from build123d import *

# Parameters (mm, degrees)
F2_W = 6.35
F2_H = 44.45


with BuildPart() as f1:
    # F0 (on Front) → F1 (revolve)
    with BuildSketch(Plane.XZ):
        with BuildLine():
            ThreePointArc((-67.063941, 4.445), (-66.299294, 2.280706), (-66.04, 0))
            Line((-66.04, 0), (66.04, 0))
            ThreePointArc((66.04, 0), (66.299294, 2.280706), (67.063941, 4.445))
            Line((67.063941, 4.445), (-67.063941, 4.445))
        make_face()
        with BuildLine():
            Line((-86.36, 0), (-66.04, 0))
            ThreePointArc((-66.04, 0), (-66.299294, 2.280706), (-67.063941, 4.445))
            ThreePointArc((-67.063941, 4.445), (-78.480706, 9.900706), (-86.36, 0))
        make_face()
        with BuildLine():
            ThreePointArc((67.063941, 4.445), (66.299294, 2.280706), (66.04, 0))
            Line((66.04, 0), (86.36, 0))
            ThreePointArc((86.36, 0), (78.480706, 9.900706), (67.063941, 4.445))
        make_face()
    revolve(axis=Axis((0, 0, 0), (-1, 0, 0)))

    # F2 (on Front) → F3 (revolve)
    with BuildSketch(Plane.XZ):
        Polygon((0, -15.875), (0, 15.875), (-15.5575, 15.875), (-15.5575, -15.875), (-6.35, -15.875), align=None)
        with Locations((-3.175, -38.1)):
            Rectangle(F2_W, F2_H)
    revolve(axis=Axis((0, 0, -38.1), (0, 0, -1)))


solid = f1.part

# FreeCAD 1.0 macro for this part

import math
import FreeCAD as App
import Part
import Sketcher
Q = App.Units.Quantity


def add_polygon(sketch, points):
    """Adds a closed chain of lines whose ends are joined by coincident constraints."""
    first, n = sketch.GeometryCount, len(points)
    for a, b in zip(points, points[1:] + points[:1]):
        sketch.addGeometry(Part.LineSegment(App.Vector(*a, 0), App.Vector(*b, 0)), False)
    for i in range(n):
        sketch.addConstraint(Sketcher.Constraint("Coincident", first + i, 2, first + (i + 1) % n, 1))

doc = App.newDocument("Part")
body = doc.addObject("PartDesign::Body", "Body")

# Sketch on XZ plane
sketch1 = body.newObject("Sketcher::SketchObject", "Sketch")
sketch1.AttachmentSupport = (doc.getObject("XZ_Plane"), [""])
sketch1.MapMode = "FlatFace"
sketch1.addGeometry(Part.LineSegment(App.Vector(67, 4, 0), App.Vector(-67, 4, 0)), False)
sketch1.addGeometry(Part.ArcOfCircle(Part.Circle(App.Vector(-76, 0, 0), App.Vector(0, 0, 1), 10), math.radians(26), math.radians(180)), False)
sketch1.addGeometry(Part.LineSegment(App.Vector(-86, 0, 0), App.Vector(86, 0, 0)), False)
sketch1.addGeometry(Part.ArcOfCircle(Part.Circle(App.Vector(76, 0, 0), App.Vector(0, 0, 1), 10), math.radians(0), math.radians(154)), False)
sketch1.addConstraint(Sketcher.Constraint("Coincident", 0, 2, 1, 1))
sketch1.addConstraint(Sketcher.Constraint("Coincident", 1, 2, 2, 1))
sketch1.addConstraint(Sketcher.Constraint("Coincident", 2, 2, 3, 1))
sketch1.addConstraint(Sketcher.Constraint("Coincident", 3, 2, 0, 1))
sketch1.addConstraint(Sketcher.Constraint("Horizontal", 0))
sketch1.addConstraint(Sketcher.Constraint("Horizontal", 2))
sketch1.addConstraint(Sketcher.Constraint("Equal", 1, 3))
sketch1.addConstraint(Sketcher.Constraint("Symmetric", 1, 3, 3, 3, -1, 1))
sketch1.addConstraint(Sketcher.Constraint("PointOnObject", 1, 3, -1))
sketch1.addConstraint(Sketcher.Constraint("PointOnObject", 1, 2, -1))
sketch1.addConstraint(Sketcher.Constraint("Radius", 1, Q("0.4 in")))
sketch1.addConstraint(Sketcher.Constraint("DistanceX", 2, 1, 2, 2, Q("6.8 in")))
sketch1.addConstraint(Sketcher.Constraint("DistanceY", -1, 1, 0, 2, Q("0.175 in")))
revolution = body.newObject("PartDesign::Revolution", "Revolution")
revolution.Profile = sketch1
revolution.ReferenceAxis = (sketch1, ["H_Axis"])
revolution.Angle = 360

# Sketch on XZ plane
sketch2 = body.newObject("Sketcher::SketchObject", "Sketch001")
sketch2.AttachmentSupport = (doc.getObject("XZ_Plane"), [""])
sketch2.MapMode = "FlatFace"
add_polygon(sketch2, [(0, 16), (-16, 16), (-16, -16), (-6, -16), (-6, -60), (0, -60)])  # lines 0-5
sketch2.addConstraint(Sketcher.Constraint("Horizontal", 0))
sketch2.addConstraint(Sketcher.Constraint("Vertical", 1))
sketch2.addConstraint(Sketcher.Constraint("Horizontal", 2))
sketch2.addConstraint(Sketcher.Constraint("Vertical", 3))
sketch2.addConstraint(Sketcher.Constraint("Horizontal", 4))
sketch2.addConstraint(Sketcher.Constraint("Vertical", 5))
sketch2.addConstraint(Sketcher.Constraint("PointOnObject", 4, 2, -2))
sketch2.addConstraint(Sketcher.Constraint("DistanceY", 5, 1, 5, 2, Q("3 in")))
sketch2.addConstraint(Sketcher.Constraint("DistanceX", 4, 1, 4, 2, Q("0.25 in")))
sketch2.addConstraint(Sketcher.Constraint("DistanceY", 1, 2, 1, 1, Q("1.25 in")))
sketch2.addConstraint(Sketcher.Constraint("DistanceX", 0, 2, 0, 1, Q("0.6125 in")))
sketch2.addConstraint(Sketcher.Constraint("DistanceY", -1, 1, 0, 2, Q("0.625 in")))
revolution2 = body.newObject("PartDesign::Revolution", "Revolution001")
revolution2.Profile = sketch2
revolution2.ReferenceAxis = (sketch2, ["V_Axis"])
revolution2.Angle = 360

doc.recompute()
